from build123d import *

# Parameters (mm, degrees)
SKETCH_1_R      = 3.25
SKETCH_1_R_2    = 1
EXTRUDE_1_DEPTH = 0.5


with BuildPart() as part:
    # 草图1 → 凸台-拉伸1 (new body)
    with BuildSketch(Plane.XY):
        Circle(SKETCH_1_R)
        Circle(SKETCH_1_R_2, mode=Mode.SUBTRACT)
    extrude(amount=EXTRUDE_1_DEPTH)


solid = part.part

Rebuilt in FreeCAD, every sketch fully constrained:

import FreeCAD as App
import Part
import Sketcher

V = App.Vector
Q = App.Units.Quantity

doc = App.newDocument("Part")
body = doc.addObject("PartDesign::Body", "Body")

sketch1 = doc.addObject("Sketcher::SketchObject", "Sketch")
body.addObject(sketch1)
sketch1.AttachmentSupport = (doc.XY_Plane, [""])
sketch1.MapMode = "FlatFace"
sketch1.addGeometry([
    Part.Circle(V(0, 0, 0), V(0, 0, 1), 3.25),
    Part.Circle(V(0, 0, 0), V(0, 0, 1), 1),
], False)
sketch1.addConstraint([
    Sketcher.Constraint("Coincident", 0, 3, -1, 1),
    Sketcher.Constraint("Coincident", 1, 3, -1, 1),
    Sketcher.Constraint("Diameter", 1, Q("2 mm")),
    Sketcher.Constraint("Diameter", 0, Q("6.5 mm")),
])
pad1 = doc.addObject("PartDesign::Pad", "Pad")
body.addObject(pad1)
pad1.Profile = sketch1
pad1.Length = 0.5

doc.recompute()
